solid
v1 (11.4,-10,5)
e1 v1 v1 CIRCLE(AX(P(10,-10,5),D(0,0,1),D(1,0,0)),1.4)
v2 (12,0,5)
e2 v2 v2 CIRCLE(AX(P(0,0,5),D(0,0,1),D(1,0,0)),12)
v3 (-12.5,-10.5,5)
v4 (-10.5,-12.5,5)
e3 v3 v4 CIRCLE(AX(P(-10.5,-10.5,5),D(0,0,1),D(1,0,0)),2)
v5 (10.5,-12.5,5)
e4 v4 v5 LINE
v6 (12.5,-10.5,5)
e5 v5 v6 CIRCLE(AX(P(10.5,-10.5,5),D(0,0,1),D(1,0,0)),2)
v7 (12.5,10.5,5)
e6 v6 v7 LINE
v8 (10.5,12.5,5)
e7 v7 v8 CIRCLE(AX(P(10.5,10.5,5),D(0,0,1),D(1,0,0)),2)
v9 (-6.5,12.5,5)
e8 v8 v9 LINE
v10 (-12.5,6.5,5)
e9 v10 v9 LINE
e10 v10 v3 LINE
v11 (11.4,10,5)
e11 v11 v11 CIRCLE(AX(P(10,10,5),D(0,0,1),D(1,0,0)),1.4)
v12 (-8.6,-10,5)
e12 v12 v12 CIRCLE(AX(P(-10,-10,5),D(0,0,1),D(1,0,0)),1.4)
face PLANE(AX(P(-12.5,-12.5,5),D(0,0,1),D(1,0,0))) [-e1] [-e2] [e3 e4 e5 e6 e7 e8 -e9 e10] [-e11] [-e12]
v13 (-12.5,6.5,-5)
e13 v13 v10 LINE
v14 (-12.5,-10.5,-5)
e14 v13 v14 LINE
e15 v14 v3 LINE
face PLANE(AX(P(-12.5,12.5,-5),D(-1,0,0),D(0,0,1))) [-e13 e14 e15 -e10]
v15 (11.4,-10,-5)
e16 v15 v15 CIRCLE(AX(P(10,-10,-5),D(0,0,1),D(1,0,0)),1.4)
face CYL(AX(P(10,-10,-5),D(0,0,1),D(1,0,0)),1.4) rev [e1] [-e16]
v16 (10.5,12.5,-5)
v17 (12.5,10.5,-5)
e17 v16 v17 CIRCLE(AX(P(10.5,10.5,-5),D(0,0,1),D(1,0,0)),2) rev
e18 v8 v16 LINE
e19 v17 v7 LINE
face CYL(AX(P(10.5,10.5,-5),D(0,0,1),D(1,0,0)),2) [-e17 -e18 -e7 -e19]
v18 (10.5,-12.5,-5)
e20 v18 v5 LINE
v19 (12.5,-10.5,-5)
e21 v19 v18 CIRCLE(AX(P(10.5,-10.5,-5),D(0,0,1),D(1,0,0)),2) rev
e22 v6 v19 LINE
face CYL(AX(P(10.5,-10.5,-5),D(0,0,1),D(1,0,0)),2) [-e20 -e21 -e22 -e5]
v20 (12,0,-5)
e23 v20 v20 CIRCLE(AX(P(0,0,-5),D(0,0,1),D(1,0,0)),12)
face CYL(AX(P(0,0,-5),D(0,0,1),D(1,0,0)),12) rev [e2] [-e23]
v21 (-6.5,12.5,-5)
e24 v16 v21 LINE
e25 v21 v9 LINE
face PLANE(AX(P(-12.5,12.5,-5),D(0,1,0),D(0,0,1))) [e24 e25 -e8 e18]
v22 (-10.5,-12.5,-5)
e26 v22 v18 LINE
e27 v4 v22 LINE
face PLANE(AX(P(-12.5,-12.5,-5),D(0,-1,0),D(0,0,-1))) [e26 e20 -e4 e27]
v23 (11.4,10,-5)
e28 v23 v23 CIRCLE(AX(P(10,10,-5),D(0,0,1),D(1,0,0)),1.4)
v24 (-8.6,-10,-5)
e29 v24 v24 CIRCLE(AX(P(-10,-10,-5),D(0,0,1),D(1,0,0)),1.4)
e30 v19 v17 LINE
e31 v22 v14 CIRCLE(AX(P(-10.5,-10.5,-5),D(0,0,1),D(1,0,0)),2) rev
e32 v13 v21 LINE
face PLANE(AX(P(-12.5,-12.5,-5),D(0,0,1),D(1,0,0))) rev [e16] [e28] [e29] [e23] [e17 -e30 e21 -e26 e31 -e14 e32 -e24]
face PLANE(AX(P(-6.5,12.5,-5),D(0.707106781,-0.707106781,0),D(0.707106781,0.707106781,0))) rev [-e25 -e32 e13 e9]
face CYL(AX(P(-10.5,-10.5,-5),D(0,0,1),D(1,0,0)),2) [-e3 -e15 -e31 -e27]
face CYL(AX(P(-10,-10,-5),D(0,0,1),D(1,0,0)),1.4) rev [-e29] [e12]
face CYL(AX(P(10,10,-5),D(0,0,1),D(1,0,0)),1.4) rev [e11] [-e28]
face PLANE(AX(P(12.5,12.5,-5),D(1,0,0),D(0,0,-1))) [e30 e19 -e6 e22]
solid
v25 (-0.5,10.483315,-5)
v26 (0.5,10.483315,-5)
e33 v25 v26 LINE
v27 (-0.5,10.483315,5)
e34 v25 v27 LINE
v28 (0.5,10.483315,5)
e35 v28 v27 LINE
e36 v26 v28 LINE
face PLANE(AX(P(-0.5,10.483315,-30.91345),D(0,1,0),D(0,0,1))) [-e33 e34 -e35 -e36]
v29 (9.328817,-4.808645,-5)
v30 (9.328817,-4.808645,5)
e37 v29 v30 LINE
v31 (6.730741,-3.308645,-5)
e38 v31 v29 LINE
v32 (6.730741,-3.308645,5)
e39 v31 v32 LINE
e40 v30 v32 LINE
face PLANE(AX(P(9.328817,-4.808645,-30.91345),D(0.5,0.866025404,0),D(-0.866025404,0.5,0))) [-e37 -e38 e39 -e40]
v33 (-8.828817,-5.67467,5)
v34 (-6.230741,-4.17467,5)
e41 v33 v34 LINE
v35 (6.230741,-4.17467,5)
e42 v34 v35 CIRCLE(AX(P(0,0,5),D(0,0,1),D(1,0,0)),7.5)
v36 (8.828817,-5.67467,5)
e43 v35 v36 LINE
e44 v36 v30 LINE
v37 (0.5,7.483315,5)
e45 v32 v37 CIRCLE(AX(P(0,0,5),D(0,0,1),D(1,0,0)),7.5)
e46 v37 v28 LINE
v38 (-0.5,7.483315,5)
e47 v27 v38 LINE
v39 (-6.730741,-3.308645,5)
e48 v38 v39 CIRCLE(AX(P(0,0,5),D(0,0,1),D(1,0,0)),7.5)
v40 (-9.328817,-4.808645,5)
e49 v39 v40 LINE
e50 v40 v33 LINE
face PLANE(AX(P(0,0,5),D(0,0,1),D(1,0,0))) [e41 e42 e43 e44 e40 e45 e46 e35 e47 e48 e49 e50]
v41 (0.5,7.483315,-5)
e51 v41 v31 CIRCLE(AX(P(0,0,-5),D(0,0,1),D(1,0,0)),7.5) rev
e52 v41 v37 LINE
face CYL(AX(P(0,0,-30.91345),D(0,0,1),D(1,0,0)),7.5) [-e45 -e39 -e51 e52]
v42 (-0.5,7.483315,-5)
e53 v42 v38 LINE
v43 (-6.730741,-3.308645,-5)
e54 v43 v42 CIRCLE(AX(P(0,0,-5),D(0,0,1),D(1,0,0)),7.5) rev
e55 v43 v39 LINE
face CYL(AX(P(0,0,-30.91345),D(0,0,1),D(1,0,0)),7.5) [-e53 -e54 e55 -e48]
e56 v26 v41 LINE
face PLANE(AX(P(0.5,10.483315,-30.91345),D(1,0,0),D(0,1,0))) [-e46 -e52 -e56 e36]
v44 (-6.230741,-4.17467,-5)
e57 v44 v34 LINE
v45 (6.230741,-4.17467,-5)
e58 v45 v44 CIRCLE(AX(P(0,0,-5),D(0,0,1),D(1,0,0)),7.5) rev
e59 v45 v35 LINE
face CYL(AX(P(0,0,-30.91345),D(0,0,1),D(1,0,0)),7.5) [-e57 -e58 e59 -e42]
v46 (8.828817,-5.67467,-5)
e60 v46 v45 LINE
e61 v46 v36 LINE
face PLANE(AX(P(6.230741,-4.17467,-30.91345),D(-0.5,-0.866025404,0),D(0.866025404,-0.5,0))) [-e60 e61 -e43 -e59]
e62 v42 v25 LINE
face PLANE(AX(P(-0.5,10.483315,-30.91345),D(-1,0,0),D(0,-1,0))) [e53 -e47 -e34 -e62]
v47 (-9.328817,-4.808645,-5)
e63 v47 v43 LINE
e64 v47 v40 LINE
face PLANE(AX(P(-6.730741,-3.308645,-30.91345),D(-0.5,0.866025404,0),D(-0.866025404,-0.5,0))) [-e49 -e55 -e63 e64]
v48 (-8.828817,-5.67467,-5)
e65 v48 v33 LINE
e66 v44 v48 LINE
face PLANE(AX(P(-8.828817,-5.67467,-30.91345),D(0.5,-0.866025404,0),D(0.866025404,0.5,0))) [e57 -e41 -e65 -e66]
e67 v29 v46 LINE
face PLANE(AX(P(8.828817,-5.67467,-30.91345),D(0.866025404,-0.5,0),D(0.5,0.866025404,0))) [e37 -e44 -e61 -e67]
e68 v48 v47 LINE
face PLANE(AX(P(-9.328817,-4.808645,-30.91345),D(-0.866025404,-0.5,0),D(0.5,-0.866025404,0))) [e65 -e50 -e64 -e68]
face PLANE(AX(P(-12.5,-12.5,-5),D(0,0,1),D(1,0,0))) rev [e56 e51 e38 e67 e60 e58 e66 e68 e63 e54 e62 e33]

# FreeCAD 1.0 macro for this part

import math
import FreeCAD as App
import Part
import Sketcher
Q = App.Units.Quantity


def edges_at(feature, points):
    """Names of the edges that pass closest to the given points."""
    edges = feature.Shape.Edges
    near = lambda p: min(range(len(edges)), key=lambda i: edges[i].distToShape(Part.Vertex(*p))[0])
    return sorted({f"Edge{near(p) + 1}" for p in points})


def add_polygon(sketch, points):
    """Adds a closed chain of lines whose ends are joined by coincident constraints."""
    first, n = sketch.GeometryCount, len(points)
    for a, b in zip(points, points[1:] + points[:1]):
        sketch.addGeometry(Part.LineSegment(App.Vector(*a, 0), App.Vector(*b, 0)), False)
    for i in range(n):
        sketch.addConstraint(Sketcher.Constraint("Coincident", first + i, 2, first + (i + 1) % n, 1))

doc = App.newDocument("Part")
body = doc.addObject("PartDesign::Body", "Body")

# Sketch on XY plane
sketch1 = doc.addObject("Sketcher::SketchObject", "Sketch")
body.addObject(sketch1)
sketch1.AttachmentSupport = (doc.XY_Plane, [""])
sketch1.MapMode = "FlatFace"
add_polygon(sketch1, [(-12.5, 12.5), (-12.5, -12.5), (12.5, -12.5), (12.5, 12.5)])  # lines 0-3
sketch1.addGeometry(Part.Circle(App.Vector(-10, -10, 0), App.Vector(0, 0, 1), 1.4), False)  # 4
sketch1.addGeometry(Part.Circle(App.Vector(10, -10, 0), App.Vector(0, 0, 1), 1.4), False)  # 5
sketch1.addGeometry(Part.Circle(App.Vector(0, 0, 0), App.Vector(0, 0, 1), 12), False)  # 6
sketch1.addGeometry(Part.Circle(App.Vector(10, 10, 0), App.Vector(0, 0, 1), 1.4), False)  # 7
sketch1.addConstraint([
    Sketcher.Constraint("Vertical", 0),
    Sketcher.Constraint("Horizontal", 1),
    Sketcher.Constraint("Vertical", 2),
    Sketcher.Constraint("Horizontal", 3),
    Sketcher.Constraint("Coincident", 6, 3, -1, 1),
    Sketcher.Constraint("Equal", 4, 5),
    Sketcher.Constraint("Equal", 5, 7),
    Sketcher.Constraint("Symmetric", 4, 3, 7, 3, -1, 1),
    Sketcher.Constraint("Symmetric", 0, 2, 2, 2, -1, 1),
    Sketcher.Constraint("Symmetric", 4, 3, 5, 3, -2),
    Sketcher.Constraint("Equal", 3, 0),
    Sketcher.Constraint("Diameter", 6, 24.0),
    Sketcher.Constraint("Diameter", 4, 2.8),
    Sketcher.Constraint("DistanceX", 1, 1, 1, 2, 25.0),
    Sketcher.Constraint("DistanceX", 4, 3, -1, 1, 10.0),
    Sketcher.Constraint("DistanceY", 4, 3, -1, 1, 10.0),
])
pad1 = doc.addObject("PartDesign::Pad", "Pad")
body.addObject(pad1)
pad1.Profile = sketch1
pad1.Type = "TwoLengths"
pad1.Length = 5
pad1.Length2 = 5
doc.recompute()

fillet = doc.addObject("PartDesign::Fillet", "Fillet")
body.addObject(fillet)
fillet.Base = (pad1, edges_at(pad1, [
    (-12.5, 12.5, 0),
    (12.5, 12.5, 0),
    (12.5, -12.5, 0),
    (-12.5, -12.5, 0),
]))
fillet.Radius = 2

# Sketch on XY plane
sketch2 = doc.addObject("Sketcher::SketchObject", "Sketch001")
body.addObject(sketch2)
sketch2.AttachmentSupport = (doc.XY_Plane, [""])
sketch2.MapMode = "FlatFace"
sketch2.AttachmentOffset = App.Placement(App.Vector(0, 0, 5), App.Rotation())
sketch2.addGeometry([
    Part.LineSegment(App.Vector(-12.5, 6.5, 0), App.Vector(-6.5, 12.5, 0)),
    Part.LineSegment(App.Vector(-6.5, 12.5, 0), App.Vector(-10.5, 12.5, 0)),
    Part.ArcOfCircle(Part.Circle(App.Vector(-10.5, 10.5, 0), App.Vector(0, 0, 1), 2), math.radians(90), math.radians(180)),
    Part.LineSegment(App.Vector(-12.5, 10.5, 0), App.Vector(-12.5, 6.5, 0)),
], False)
sketch2.addConstraint([
    Sketcher.Constraint("Coincident", 0, 2, 1, 1),
    Sketcher.Constraint("Tangent", 1, 2, 2, 1),
    Sketcher.Constraint("Tangent", 2, 2, 3, 1),
    Sketcher.Constraint("Coincident", 3, 2, 0, 1),
    Sketcher.Constraint("Horizontal", 1),
    Sketcher.Constraint("Vertical", 3),
    Sketcher.Constraint("Equal", 1, 3),
    Sketcher.Constraint("Radius", 2, 2.0),
    Sketcher.Constraint("DistanceX", 1, 2, 1, 1, 4.0),
    Sketcher.Constraint("DistanceX", 2, 3, -1, 1, 10.5),
    Sketcher.Constraint("DistanceY", -1, 1, 2, 3, 10.5),
])
pocket1 = doc.addObject("PartDesign::Pocket", "Pocket")
body.addObject(pocket1)
pocket1.Profile = sketch2
pocket1.Type = "ThroughAll"
body2 = doc.addObject("PartDesign::Body", "Body001")

# Sketch on XY plane
sketch3 = doc.addObject("Sketcher::SketchObject", "Sketch002")
body2.addObject(sketch3)
sketch3.AttachmentSupport = (doc.getObject("XY_Plane001"), [""])
sketch3.MapMode = "FlatFace"
sketch3.AttachmentOffset = App.Placement(App.Vector(0, 0, 5), App.Rotation())
sketch3.addGeometry([
    Part.LineSegment(App.Vector(-6.730741, -3.308645, 0), App.Vector(-9.328817, -4.808645, 0)),  # 0
    Part.LineSegment(App.Vector(-9.328817, -4.808645, 0), App.Vector(-8.828817, -5.67467, 0)),  # 1
    Part.LineSegment(App.Vector(-8.828817, -5.67467, 0), App.Vector(-6.230741, -4.17467, 0)),  # 2
    Part.ArcOfCircle(Part.Circle(App.Vector(0, 0, 0), App.Vector(0, 0, 1), 7.5), math.radians(-146.177446), math.radians(-33.822554)),  # 3
    Part.LineSegment(App.Vector(6.230741, -4.17467, 0), App.Vector(8.828817, -5.67467, 0)),  # 4
    Part.LineSegment(App.Vector(8.828817, -5.67467, 0), App.Vector(9.328817, -4.808645, 0)),  # 5
    Part.LineSegment(App.Vector(9.328817, -4.808645, 0), App.Vector(6.730741, -3.308645, 0)),  # 6
    Part.ArcOfCircle(Part.Circle(App.Vector(0, 0, 0), App.Vector(0, 0, 1), 7.5), math.radians(-26.177446), math.radians(86.177446)),  # 7
    Part.LineSegment(App.Vector(0.5, 7.483315, 0), App.Vector(0.5, 10.483315, 0)),  # 8
    Part.LineSegment(App.Vector(0.5, 10.483315, 0), App.Vector(-0.5, 10.483315, 0)),  # 9
    Part.LineSegment(App.Vector(-0.5, 10.483315, 0), App.Vector(-0.5, 7.483315, 0)),  # 10
    Part.ArcOfCircle(Part.Circle(App.Vector(0, 0, 0), App.Vector(0, 0, 1), 7.5), math.radians(93.822554), math.radians(206.177446)),  # 11
], False)
sketch3.addConstraint([
    Sketcher.Constraint("Coincident", 0, 2, 1, 1),
    Sketcher.Constraint("Coincident", 1, 2, 2, 1),
    Sketcher.Constraint("Coincident", 2, 2, 3, 1),
    Sketcher.Constraint("Coincident", 3, 2, 4, 1),
    Sketcher.Constraint("Coincident", 4, 2, 5, 1),
    Sketcher.Constraint("Coincident", 5, 2, 6, 1),
    Sketcher.Constraint("Coincident", 6, 2, 7, 1),
    Sketcher.Constraint("Coincident", 7, 2, 8, 1),
    Sketcher.Constraint("Coincident", 8, 2, 9, 1),
    Sketcher.Constraint("Coincident", 9, 2, 10, 1),
    Sketcher.Constraint("Coincident", 10, 2, 11, 1),
    Sketcher.Constraint("Coincident", 11, 2, 0, 1),
    Sketcher.Constraint("Vertical", 8),
    Sketcher.Constraint("Horizontal", 9),
    Sketcher.Constraint("Vertical", 10),
    Sketcher.Constraint("Coincident", 3, 3, -1, 1),
    Sketcher.Constraint("Coincident", 7, 3, -1, 1),
    Sketcher.Constraint("Coincident", 11, 3, -1, 1),
    Sketcher.Constraint("Equal", 3, 7),
    Sketcher.Constraint("Equal", 7, 11),
    Sketcher.Constraint("Symmetric", 1, 2, 4, 2, -2),
    Sketcher.Constraint("Symmetric", 0, 2, 5, 2, -2),
    Sketcher.Constraint("Perpendicular", 0, 1),
    Sketcher.Constraint("Perpendicular", 1, 2),
    Sketcher.Constraint("Perpendicular", 4, 5),
    Sketcher.Constraint("Perpendicular", 5, 6),
    Sketcher.Constraint("Horizontal", 7, 2, 10, 2),
    Sketcher.Constraint("Equal", 0, 2),
    Sketcher.Constraint("Radius", 3, 7.5),
    Sketcher.Constraint("DistanceX", 9, 2, 9, 1, 1.0),
    Sketcher.Constraint("DistanceY", 8, 1, 8, 2, 3.0),
    Sketcher.Constraint("Angle", 0, Q("-150 deg")),
    Sketcher.Constraint("Distance", 0, 3.0),
    Sketcher.Constraint("Distance", 1, 1.0),
])
pad2 = doc.addObject("PartDesign::Pad", "Pad001")
body2.addObject(pad2)
pad2.Profile = sketch3
pad2.Length = 10
pad2.Reversed = True

doc.recompute()
